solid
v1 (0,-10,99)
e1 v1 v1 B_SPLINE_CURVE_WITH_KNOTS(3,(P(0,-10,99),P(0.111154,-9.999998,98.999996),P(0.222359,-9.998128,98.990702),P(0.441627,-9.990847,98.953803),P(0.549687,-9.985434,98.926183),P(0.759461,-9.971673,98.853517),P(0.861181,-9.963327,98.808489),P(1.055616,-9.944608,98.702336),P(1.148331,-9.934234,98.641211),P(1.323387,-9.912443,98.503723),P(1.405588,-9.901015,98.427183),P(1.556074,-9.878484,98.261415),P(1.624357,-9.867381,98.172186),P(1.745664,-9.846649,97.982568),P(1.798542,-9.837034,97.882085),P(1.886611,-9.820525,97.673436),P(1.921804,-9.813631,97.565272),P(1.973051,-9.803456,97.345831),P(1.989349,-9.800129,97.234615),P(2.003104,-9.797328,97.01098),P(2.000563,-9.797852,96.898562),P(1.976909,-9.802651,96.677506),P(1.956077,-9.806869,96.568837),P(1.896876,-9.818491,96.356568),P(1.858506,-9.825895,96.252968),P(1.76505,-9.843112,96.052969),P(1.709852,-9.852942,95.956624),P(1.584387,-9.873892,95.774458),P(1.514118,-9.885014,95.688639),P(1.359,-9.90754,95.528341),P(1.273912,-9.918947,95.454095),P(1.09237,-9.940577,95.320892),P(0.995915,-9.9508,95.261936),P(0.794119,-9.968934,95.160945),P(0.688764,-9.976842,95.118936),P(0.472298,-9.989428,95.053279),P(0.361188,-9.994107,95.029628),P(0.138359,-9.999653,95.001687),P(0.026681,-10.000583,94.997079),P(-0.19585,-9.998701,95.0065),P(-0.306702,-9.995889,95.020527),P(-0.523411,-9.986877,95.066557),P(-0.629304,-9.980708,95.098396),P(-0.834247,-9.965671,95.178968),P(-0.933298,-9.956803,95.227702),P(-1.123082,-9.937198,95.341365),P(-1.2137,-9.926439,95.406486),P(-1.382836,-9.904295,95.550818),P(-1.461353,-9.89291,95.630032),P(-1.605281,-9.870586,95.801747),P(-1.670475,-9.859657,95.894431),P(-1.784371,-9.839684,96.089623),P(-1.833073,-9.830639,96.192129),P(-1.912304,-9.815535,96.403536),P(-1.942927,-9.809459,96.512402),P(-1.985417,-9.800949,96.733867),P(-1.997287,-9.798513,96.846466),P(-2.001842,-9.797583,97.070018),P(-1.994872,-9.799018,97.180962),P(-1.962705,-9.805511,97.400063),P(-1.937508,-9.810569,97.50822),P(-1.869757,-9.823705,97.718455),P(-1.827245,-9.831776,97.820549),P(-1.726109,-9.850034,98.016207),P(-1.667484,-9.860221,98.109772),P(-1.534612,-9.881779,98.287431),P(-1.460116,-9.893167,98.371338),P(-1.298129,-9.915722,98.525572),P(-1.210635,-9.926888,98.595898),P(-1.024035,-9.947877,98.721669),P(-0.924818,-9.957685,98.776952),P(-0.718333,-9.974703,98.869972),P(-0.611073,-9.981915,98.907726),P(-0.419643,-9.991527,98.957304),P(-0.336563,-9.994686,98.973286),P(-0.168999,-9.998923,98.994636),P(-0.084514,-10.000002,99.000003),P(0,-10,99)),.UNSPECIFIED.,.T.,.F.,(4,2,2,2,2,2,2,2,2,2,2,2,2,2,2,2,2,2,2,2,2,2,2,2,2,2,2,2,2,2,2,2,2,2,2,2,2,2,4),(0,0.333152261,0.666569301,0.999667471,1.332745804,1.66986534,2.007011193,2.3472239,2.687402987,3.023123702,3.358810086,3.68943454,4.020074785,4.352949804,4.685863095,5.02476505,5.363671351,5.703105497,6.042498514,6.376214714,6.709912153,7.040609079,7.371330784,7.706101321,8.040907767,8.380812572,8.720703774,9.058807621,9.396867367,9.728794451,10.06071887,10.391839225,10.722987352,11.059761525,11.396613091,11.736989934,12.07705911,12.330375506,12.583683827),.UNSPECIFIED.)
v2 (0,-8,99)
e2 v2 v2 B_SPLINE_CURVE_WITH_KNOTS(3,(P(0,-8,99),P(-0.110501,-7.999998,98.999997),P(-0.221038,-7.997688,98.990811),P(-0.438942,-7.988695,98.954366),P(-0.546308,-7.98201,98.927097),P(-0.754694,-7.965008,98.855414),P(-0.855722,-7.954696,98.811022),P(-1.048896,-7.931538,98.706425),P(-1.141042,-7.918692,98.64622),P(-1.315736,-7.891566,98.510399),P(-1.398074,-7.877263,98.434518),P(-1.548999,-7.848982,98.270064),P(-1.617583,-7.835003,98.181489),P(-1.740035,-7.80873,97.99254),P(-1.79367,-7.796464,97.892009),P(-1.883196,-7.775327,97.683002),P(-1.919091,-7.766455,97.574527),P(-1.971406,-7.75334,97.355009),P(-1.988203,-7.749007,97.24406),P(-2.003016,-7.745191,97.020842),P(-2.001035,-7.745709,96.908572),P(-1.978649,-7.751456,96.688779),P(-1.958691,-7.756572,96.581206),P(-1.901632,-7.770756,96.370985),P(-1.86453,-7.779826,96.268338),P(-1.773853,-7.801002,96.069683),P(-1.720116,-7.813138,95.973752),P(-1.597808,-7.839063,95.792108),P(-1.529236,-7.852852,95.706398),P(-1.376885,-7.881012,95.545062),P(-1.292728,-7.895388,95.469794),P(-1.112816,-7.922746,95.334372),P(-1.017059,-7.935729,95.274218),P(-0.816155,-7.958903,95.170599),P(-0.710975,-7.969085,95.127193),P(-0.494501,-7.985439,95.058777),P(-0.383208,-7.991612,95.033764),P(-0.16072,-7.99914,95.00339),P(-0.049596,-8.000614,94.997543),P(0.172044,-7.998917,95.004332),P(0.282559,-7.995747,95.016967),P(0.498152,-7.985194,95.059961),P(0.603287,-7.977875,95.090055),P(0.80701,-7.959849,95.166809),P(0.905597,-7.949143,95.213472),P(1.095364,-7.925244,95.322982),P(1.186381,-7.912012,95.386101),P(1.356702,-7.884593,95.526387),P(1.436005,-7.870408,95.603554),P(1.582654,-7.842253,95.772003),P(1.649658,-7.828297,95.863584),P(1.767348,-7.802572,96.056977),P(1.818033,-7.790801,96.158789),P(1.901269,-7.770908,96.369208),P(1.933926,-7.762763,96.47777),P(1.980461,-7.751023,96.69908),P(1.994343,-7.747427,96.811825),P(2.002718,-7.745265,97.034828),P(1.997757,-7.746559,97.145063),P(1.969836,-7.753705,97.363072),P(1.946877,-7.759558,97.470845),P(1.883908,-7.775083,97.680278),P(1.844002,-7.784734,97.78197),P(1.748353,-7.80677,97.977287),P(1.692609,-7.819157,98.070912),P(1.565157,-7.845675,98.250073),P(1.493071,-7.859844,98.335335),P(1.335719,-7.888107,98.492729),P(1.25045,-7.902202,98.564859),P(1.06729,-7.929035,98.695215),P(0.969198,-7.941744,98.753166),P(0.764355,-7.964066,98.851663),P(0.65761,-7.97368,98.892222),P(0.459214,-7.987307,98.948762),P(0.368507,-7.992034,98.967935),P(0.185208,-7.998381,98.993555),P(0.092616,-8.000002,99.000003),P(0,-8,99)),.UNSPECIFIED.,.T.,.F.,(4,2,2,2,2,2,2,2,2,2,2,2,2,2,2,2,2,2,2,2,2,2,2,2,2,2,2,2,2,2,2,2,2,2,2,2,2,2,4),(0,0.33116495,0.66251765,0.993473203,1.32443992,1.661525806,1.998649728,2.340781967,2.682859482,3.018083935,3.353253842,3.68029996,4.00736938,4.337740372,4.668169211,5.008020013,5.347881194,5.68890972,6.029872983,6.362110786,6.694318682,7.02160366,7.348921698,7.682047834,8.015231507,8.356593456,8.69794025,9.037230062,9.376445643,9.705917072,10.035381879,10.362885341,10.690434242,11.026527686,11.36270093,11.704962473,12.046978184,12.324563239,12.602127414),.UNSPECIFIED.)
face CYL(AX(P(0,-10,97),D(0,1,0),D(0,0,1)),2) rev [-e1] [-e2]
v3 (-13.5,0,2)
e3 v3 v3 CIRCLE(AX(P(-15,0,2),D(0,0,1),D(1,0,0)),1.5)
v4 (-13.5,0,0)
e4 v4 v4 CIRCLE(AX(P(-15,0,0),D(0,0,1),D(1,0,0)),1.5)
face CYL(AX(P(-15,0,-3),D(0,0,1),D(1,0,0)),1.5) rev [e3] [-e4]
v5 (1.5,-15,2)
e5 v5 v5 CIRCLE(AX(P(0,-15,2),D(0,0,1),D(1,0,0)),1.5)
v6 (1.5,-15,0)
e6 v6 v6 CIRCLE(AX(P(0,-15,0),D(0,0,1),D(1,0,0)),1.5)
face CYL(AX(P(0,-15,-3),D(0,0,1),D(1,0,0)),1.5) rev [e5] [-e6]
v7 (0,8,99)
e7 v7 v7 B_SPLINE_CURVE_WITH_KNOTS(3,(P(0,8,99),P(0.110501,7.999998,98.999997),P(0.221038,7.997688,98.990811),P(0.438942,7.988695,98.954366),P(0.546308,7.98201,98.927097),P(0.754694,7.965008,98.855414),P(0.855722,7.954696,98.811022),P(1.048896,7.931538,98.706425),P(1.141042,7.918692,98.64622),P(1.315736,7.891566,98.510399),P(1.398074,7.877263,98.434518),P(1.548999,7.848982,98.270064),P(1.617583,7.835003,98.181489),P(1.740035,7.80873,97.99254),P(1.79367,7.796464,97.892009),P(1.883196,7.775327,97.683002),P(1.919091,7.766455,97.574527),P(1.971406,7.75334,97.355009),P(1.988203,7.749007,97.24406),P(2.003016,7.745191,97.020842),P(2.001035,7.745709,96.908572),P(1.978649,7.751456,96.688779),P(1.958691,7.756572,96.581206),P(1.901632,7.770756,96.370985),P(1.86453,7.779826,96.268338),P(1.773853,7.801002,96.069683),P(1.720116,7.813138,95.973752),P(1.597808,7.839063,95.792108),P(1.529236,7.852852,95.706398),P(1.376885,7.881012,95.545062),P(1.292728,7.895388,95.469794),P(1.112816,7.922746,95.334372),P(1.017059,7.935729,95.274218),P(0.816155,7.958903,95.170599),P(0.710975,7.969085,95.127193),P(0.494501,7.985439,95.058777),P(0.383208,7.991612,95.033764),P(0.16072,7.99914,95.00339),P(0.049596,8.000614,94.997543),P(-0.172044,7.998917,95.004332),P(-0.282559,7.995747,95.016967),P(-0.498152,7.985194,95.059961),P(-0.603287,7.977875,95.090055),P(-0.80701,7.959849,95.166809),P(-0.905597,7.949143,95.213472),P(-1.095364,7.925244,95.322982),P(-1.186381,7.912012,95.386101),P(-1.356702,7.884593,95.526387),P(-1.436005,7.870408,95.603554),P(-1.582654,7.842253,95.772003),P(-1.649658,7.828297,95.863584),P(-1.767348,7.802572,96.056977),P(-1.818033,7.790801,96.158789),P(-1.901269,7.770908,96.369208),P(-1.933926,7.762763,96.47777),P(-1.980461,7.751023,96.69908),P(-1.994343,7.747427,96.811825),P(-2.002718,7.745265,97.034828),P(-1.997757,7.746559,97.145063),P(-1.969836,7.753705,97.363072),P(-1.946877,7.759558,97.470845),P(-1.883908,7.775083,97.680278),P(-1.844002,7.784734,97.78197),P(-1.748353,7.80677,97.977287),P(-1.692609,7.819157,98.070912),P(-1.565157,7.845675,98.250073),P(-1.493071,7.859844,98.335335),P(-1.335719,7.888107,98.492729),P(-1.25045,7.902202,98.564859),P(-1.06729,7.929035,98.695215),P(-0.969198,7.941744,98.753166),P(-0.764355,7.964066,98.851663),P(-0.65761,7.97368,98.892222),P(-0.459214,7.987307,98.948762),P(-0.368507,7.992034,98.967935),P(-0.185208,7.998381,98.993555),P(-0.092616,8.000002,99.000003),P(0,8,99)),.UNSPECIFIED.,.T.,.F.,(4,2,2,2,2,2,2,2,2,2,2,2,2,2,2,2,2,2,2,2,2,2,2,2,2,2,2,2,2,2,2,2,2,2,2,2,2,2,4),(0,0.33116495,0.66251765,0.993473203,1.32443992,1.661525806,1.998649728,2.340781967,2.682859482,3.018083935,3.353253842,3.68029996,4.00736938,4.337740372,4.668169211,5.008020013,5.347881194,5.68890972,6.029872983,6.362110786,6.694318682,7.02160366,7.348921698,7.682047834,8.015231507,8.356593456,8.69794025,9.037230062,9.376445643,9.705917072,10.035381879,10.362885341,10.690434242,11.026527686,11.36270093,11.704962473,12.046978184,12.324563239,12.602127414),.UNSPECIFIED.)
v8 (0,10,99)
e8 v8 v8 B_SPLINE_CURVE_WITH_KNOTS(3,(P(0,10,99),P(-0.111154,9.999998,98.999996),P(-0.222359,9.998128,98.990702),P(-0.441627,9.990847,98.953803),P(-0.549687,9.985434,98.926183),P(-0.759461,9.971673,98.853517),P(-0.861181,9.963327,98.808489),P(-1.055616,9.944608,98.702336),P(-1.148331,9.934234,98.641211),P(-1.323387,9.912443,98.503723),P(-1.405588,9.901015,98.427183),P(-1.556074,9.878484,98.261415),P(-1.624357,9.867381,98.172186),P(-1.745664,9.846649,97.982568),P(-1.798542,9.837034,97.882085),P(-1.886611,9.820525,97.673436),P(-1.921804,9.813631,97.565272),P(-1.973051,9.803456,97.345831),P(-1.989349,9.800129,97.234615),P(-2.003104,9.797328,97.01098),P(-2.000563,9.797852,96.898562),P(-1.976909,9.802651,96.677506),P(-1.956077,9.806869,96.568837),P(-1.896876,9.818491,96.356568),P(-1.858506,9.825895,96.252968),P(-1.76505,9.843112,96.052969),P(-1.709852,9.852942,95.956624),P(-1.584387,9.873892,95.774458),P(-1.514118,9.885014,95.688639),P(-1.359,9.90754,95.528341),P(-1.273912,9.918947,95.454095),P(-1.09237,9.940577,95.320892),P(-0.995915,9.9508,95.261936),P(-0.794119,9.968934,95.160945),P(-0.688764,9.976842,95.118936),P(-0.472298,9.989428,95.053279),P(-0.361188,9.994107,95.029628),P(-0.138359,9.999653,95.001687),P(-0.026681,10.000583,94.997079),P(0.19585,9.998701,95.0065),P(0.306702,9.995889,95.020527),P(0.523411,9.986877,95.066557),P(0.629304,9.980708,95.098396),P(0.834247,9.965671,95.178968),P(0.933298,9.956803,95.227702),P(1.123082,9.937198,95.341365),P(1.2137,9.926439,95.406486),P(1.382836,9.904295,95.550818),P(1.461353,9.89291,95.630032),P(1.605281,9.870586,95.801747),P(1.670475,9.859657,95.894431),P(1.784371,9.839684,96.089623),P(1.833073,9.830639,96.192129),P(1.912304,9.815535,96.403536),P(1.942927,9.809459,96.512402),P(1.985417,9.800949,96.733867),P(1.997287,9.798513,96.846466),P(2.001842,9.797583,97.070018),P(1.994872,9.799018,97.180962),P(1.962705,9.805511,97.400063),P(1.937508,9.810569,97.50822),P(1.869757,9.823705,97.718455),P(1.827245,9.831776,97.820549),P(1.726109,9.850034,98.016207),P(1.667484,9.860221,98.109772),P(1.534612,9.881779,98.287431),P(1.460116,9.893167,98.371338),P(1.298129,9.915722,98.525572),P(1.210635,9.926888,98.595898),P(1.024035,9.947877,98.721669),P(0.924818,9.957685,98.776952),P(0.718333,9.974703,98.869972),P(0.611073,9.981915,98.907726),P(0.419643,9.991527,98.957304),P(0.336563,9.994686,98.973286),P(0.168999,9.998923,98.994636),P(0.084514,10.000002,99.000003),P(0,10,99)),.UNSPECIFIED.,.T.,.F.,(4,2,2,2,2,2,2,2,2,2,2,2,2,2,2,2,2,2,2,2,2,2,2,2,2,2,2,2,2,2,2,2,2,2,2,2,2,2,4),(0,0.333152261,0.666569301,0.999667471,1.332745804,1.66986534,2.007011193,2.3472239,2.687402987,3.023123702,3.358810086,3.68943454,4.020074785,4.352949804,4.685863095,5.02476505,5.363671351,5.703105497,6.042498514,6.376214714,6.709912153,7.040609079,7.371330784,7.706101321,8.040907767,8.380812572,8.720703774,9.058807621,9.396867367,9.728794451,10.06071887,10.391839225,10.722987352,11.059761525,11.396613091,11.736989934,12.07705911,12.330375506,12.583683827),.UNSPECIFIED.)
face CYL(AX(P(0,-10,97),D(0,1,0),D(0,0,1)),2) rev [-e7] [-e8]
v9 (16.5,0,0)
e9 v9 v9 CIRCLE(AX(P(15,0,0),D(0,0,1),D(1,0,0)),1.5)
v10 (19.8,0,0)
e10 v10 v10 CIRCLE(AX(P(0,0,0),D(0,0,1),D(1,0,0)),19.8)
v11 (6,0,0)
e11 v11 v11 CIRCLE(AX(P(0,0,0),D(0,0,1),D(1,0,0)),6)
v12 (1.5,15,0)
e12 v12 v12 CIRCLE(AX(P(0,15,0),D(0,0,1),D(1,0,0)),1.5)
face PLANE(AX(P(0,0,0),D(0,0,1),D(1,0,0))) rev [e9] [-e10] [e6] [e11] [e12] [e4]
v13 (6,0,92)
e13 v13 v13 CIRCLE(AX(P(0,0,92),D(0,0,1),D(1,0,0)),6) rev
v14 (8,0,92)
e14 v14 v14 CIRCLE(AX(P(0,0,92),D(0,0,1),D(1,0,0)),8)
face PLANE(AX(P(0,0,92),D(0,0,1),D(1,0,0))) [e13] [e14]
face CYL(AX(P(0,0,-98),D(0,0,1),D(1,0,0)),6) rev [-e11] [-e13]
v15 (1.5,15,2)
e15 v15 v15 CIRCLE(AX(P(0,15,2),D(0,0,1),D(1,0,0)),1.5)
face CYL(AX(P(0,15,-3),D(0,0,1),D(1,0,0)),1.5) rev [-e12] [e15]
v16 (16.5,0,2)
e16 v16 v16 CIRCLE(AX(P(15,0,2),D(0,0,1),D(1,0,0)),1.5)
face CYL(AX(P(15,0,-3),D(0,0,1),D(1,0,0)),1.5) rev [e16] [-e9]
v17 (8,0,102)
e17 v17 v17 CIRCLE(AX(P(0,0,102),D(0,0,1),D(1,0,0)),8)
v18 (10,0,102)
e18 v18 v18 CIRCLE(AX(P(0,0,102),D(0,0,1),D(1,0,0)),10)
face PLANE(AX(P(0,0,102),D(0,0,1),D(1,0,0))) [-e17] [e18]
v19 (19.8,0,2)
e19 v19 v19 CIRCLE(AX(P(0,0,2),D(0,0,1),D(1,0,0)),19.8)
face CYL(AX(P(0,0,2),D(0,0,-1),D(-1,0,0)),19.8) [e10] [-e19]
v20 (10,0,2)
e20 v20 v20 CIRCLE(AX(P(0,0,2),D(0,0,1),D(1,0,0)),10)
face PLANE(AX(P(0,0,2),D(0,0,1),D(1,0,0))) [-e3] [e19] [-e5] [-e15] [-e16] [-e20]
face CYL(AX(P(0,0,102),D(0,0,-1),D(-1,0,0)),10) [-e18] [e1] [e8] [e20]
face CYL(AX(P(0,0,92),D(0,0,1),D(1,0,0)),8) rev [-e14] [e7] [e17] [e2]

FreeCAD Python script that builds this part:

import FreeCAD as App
import Part
import Sketcher
from FreeCAD import Vector

doc = App.newDocument("Part")
body = doc.addObject("PartDesign::Body", "Body")

# Sketch on XY plane
sketch1 = body.newObject("Sketcher::SketchObject", "Sketch")
sketch1.AttachmentSupport = (doc.getObject("XY_Plane"), [""])
sketch1.MapMode = "FlatFace"
sketch1.addGeometry(Part.Circle(Vector(0, 0, 0), Vector(0, 0, 1), 19.8), False)
sketch1.addConstraint([
    Sketcher.Constraint("Coincident", 0, 3, -1, 1),
    Sketcher.Constraint("Diameter", 0, 39.6),
])
pad1 = body.newObject("PartDesign::Pad", "Pad")
pad1.Profile = sketch1
pad1.Length = 2

# Sketch on XY plane
sketch2 = body.newObject("Sketcher::SketchObject", "Sketch001")
sketch2.AttachmentSupport = (doc.getObject("XY_Plane"), [""])
sketch2.MapMode = "FlatFace"
sketch2.AttachmentOffset = App.Placement(Vector(0, 0, 2), App.Rotation())
sketch2.addGeometry([
    Part.Circle(Vector(0, 15, 0), Vector(0, 0, 1), 1.5),
    Part.Circle(Vector(15, 0, 0), Vector(0, 0, 1), 1.5),
    Part.Circle(Vector(0, -15, 0), Vector(0, 0, 1), 1.5),
    Part.Circle(Vector(-15, 0, 0), Vector(0, 0, 1), 1.5),
], False)
sketch2.addConstraint([
    Sketcher.Constraint("Equal", 0, 1),
    Sketcher.Constraint("Equal", 1, 2),
    Sketcher.Constraint("Equal", 2, 3),
    Sketcher.Constraint("Symmetric", 0, 3, 2, 3, -1, 1),
    Sketcher.Constraint("Symmetric", 1, 3, 3, 3, -1, 1),
    Sketcher.Constraint("PointOnObject", 0, 3, -2),
    Sketcher.Constraint("PointOnObject", 1, 3, -1),
    Sketcher.Constraint("Diameter", 0, 3.0),
    Sketcher.Constraint("DistanceY", -1, 1, 0, 3, 15.0),
    Sketcher.Constraint("DistanceX", -1, 1, 1, 3, 15.0),
])
pocket1 = body.newObject("PartDesign::Pocket", "Pocket")
pocket1.Profile = sketch2
pocket1.Length = 5

# Sketch on XY plane
sketch3 = body.newObject("Sketcher::SketchObject", "Sketch002")
sketch3.AttachmentSupport = (doc.getObject("XY_Plane"), [""])
sketch3.MapMode = "FlatFace"
sketch3.AttachmentOffset = App.Placement(Vector(0, 0, 2), App.Rotation())
sketch3.addGeometry(Part.Circle(Vector(0, 0, 0), Vector(0, 0, 1), 10), False)
sketch3.addConstraint([
    Sketcher.Constraint("Coincident", 0, 3, -1, 1),
    Sketcher.Constraint("Diameter", 0, 20.0),
])
pad2 = body.newObject("PartDesign::Pad", "Pad001")
pad2.Profile = sketch3
pad2.Length = 100

# Sketch on XY plane
sketch4 = body.newObject("Sketcher::SketchObject", "Sketch003")
sketch4.AttachmentSupport = (doc.getObject("XY_Plane"), [""])
sketch4.MapMode = "FlatFace"
sketch4.AttachmentOffset = App.Placement(Vector(0, 0, 102), App.Rotation())
sketch4.addGeometry(Part.Circle(Vector(0, 0, 0), Vector(0, 0, 1), 6), False)
sketch4.addConstraint([
    Sketcher.Constraint("Coincident", 0, 3, -1, 1),
    Sketcher.Constraint("Diameter", 0, 12.0),
])
pocket2 = body.newObject("PartDesign::Pocket", "Pocket001")
pocket2.Profile = sketch4
pocket2.Length = 200

# Sketch on XY plane
sketch5 = body.newObject("Sketcher::SketchObject", "Sketch004")
sketch5.AttachmentSupport = (doc.getObject("XY_Plane"), [""])
sketch5.MapMode = "FlatFace"
sketch5.AttachmentOffset = App.Placement(Vector(0, 0, 102), App.Rotation())
sketch5.addGeometry(Part.Circle(Vector(0, 0, 0), Vector(0, 0, 1), 8), False)
sketch5.addConstraint([
    Sketcher.Constraint("Coincident", 0, 3, -1, 1),
    Sketcher.Constraint("Diameter", 0, 16.0),
])
pocket3 = body.newObject("PartDesign::Pocket", "Pocket002")
pocket3.Profile = sketch5
pocket3.Length = 10

# Sketch on XZ plane
sketch6 = body.newObject("Sketcher::SketchObject", "Sketch005")
sketch6.AttachmentSupport = (doc.getObject("XZ_Plane"), [""])
sketch6.MapMode = "FlatFace"
sketch6.AttachmentOffset = App.Placement(Vector(0, 0, -10), App.Rotation())
sketch6.addGeometry(Part.Circle(Vector(0, 97, 0), Vector(0, 0, 1), 2), False)
sketch6.addConstraint([
    Sketcher.Constraint("PointOnObject", 0, 3, -2),
    Sketcher.Constraint("Diameter", 0, 4.0),
    Sketcher.Constraint("DistanceY", -1, 1, 0, 3, 97.0),
])
pocket4 = body.newObject("PartDesign::Pocket", "Pocket003")
pocket4.Profile = sketch6
pocket4.Length = 20
pocket4.Reversed = True

doc.recompute()
